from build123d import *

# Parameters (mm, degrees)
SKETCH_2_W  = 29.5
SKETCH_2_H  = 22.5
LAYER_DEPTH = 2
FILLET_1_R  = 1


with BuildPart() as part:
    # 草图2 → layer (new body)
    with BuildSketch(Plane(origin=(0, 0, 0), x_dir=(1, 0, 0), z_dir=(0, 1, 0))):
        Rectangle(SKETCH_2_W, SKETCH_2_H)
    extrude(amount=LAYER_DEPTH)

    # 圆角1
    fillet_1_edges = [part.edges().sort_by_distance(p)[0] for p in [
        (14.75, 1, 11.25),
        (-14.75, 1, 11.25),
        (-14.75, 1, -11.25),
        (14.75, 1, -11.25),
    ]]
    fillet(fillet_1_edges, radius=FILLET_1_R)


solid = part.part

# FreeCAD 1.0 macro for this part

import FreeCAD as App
import Part
import Sketcher


def edges_at(feature, points):
    """Names of the edges that pass closest to the given points."""
    edges = feature.Shape.Edges
    near = lambda p: min(range(len(edges)), key=lambda i: edges[i].distToShape(Part.Vertex(*p))[0])
    return sorted({f"Edge{near(p) + 1}" for p in points})


def add_polygon(sketch, points):
    """Adds a closed chain of lines whose ends are joined by coincident constraints."""
    first, n = sketch.GeometryCount, len(points)
    for a, b in zip(points, points[1:] + points[:1]):
        sketch.addGeometry(Part.LineSegment(App.Vector(*a, 0), App.Vector(*b, 0)), False)
    for i in range(n):
        sketch.addConstraint(Sketcher.Constraint("Coincident", first + i, 2, first + (i + 1) % n, 1))

doc = App.newDocument("Part")
params = doc.addObject("Spreadsheet::Sheet", "Params")
for row, (alias, value) in enumerate([
    ("sketch1_width", "29.5 mm"),
    ("sketch1_height", "22.5 mm"),
    ("pad1_length", "2 mm"),
    ("fillet_radius", "1 mm"),
], start=1):
    params.set(f"A{row}", alias)
    params.set(f"B{row}", "=" + value)
    params.setAlias(f"B{row}", alias)

body = doc.addObject("PartDesign::Body", "Body")

sketch1 = body.newObject("Sketcher::SketchObject", "Sketch")
sketch1.AttachmentSupport = (doc.getObject("XZ_Plane"), [""])
sketch1.MapMode = "FlatFace"
add_polygon(sketch1, [(-14.75, -11.25), (-14.75, 11.25), (14.75, 11.25), (14.75, -11.25)])
sketch1.addConstraint([
    Sketcher.Constraint("Vertical", 0),
    Sketcher.Constraint("Horizontal", 1),
    Sketcher.Constraint("Vertical", 2),
    Sketcher.Constraint("Horizontal", 3),
    Sketcher.Constraint("Symmetric", 0, 2, 2, 2, -1, 1),
    Sketcher.Constraint("DistanceX", 1, 1, 1, 2, 29.5),
    Sketcher.Constraint("DistanceY", 0, 1, 0, 2, 22.5),
])
sketch1.setExpression("Constraints[9]", "Params.sketch1_width")
sketch1.setExpression("Constraints[10]", "Params.sketch1_height")
pad1 = body.newObject("PartDesign::Pad", "Pad")
pad1.Profile = sketch1
pad1.setExpression("Length", "Params.pad1_length")
pad1.Reversed = True
doc.recompute()

fillet = body.newObject("PartDesign::Fillet", "Fillet")
fillet.Base = (pad1, edges_at(pad1, [
    (14.75, 1, 11.25),
    (-14.75, 1, 11.25),
    (-14.75, 1, -11.25),
    (14.75, 1, -11.25),
]))
fillet.setExpression("Radius", "Params.fillet_radius")

doc.recompute()
